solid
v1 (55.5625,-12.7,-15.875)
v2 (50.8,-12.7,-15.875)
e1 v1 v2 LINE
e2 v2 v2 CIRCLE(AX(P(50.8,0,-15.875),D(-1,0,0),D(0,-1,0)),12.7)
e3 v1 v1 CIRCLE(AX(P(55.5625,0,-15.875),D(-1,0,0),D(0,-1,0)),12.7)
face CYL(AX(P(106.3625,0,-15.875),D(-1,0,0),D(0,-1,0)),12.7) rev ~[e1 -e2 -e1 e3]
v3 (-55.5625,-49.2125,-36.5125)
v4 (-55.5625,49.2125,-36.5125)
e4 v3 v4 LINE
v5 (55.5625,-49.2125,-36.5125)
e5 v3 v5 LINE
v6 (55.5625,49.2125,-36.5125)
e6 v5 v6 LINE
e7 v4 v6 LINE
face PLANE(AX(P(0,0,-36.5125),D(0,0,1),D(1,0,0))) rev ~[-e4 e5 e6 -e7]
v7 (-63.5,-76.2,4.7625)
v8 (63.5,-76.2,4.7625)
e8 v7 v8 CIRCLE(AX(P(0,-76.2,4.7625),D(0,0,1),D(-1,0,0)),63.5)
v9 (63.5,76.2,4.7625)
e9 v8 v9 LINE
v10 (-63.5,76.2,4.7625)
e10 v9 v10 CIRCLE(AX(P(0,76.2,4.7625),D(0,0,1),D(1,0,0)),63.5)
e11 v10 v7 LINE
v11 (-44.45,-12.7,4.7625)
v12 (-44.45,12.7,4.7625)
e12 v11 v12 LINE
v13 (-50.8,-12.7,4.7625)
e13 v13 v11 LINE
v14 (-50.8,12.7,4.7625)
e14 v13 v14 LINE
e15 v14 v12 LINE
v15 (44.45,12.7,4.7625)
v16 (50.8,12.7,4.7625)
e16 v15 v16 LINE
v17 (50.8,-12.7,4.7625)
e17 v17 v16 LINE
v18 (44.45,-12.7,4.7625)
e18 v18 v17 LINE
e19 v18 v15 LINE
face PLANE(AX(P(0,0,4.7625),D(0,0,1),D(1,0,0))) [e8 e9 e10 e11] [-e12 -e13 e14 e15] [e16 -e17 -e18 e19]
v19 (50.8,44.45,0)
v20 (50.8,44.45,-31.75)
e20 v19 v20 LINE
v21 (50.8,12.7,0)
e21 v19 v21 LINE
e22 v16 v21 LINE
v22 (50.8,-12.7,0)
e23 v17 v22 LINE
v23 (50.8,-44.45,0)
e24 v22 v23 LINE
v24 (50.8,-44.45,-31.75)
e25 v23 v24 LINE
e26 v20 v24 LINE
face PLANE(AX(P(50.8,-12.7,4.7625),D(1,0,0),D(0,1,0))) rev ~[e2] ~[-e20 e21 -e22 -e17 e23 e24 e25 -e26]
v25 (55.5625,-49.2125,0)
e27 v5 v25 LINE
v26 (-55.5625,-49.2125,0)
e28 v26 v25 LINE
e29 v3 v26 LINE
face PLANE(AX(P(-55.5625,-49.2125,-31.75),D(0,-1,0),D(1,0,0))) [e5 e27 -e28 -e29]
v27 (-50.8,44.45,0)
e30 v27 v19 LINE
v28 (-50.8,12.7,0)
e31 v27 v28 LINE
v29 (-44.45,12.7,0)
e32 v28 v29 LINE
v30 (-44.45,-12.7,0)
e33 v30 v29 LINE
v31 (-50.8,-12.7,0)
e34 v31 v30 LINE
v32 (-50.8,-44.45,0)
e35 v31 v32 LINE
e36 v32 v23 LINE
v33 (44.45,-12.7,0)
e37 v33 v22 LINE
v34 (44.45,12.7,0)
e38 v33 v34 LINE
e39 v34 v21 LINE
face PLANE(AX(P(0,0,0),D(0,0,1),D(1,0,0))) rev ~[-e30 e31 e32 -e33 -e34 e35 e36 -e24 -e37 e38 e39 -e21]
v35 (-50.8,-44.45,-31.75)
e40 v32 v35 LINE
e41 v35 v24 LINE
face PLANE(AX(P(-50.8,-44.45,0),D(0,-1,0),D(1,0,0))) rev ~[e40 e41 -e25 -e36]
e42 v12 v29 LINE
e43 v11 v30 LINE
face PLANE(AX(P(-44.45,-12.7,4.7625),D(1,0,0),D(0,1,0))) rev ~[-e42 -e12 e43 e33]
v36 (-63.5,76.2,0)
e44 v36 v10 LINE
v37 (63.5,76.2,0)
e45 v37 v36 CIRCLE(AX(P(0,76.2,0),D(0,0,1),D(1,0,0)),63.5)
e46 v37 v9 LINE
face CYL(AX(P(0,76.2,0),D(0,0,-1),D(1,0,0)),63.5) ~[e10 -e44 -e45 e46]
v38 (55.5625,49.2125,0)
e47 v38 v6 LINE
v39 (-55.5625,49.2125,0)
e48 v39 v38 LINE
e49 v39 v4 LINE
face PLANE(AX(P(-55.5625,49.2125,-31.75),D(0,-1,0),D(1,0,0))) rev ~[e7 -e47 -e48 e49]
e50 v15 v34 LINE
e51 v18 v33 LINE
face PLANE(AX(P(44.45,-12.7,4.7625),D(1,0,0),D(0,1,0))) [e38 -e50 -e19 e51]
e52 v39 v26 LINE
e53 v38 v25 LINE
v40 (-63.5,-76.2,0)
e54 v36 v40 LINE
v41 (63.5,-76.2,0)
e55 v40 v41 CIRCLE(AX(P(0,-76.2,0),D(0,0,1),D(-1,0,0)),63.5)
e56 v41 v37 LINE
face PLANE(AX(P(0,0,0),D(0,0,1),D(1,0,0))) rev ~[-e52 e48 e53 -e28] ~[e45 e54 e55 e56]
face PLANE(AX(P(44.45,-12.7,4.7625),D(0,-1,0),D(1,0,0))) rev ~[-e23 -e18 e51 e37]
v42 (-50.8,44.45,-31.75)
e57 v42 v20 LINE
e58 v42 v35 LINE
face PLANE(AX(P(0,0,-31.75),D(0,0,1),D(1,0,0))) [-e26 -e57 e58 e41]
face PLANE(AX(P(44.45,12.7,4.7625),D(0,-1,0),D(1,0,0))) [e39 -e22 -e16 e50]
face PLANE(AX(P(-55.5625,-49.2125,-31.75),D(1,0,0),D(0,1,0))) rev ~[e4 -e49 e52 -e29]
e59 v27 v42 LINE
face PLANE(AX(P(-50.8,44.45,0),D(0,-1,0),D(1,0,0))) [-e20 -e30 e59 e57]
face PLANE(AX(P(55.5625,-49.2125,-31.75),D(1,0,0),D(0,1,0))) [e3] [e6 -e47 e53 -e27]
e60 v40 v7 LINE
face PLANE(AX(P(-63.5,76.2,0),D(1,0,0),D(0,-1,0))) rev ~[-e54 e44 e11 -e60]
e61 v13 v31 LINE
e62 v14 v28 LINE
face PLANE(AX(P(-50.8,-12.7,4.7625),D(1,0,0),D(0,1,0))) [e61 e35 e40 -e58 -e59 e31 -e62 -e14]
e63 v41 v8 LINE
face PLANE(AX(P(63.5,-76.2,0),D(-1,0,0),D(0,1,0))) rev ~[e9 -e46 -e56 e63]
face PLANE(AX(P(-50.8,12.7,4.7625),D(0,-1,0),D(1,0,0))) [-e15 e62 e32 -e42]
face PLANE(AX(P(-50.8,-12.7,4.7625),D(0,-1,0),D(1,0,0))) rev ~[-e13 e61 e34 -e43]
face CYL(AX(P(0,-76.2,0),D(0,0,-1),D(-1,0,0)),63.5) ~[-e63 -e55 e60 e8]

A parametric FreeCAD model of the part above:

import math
import FreeCAD as App
import Part
import Sketcher
Q = App.Units.Quantity


def add_polygon(sketch, points):
    """Adds a closed chain of lines whose ends are joined by coincident constraints."""
    first, n = sketch.GeometryCount, len(points)
    for a, b in zip(points, points[1:] + points[:1]):
        sketch.addGeometry(Part.LineSegment(App.Vector(*a, 0), App.Vector(*b, 0)), False)
    for i in range(n):
        sketch.addConstraint(Sketcher.Constraint("Coincident", first + i, 2, first + (i + 1) % n, 1))

doc = App.newDocument("Part")
body = doc.addObject("PartDesign::Body", "Body")

sketch1 = body.newObject("Sketcher::SketchObject", "Sketch")
sketch1.AttachmentSupport = (doc.getObject("XY_Plane"), [""])
sketch1.MapMode = "FlatFace"
sketch1.addGeometry(Part.ArcOfCircle(Part.Circle(App.Vector(0, -76.2, 0), App.Vector(0, 0, 1), 63.5), math.radians(180), math.radians(360)), False)
sketch1.addGeometry(Part.LineSegment(App.Vector(63.5, -76.2, 0), App.Vector(63.5, 76.2, 0)), False)
sketch1.addGeometry(Part.ArcOfCircle(Part.Circle(App.Vector(0, 76.2, 0), App.Vector(0, 0, 1), 63.5), math.radians(0), math.radians(180)), False)
sketch1.addGeometry(Part.LineSegment(App.Vector(-63.5, 76.2, 0), App.Vector(-63.5, -76.2, 0)), False)
sketch1.addConstraint(Sketcher.Constraint("Tangent", 0, 2, 1, 1))
sketch1.addConstraint(Sketcher.Constraint("Tangent", 1, 2, 2, 1))
sketch1.addConstraint(Sketcher.Constraint("Tangent", 2, 2, 3, 1))
sketch1.addConstraint(Sketcher.Constraint("Tangent", 3, 2, 0, 1))
sketch1.addConstraint(Sketcher.Constraint("Vertical", 1))
sketch1.addConstraint(Sketcher.Constraint("Vertical", 3))
sketch1.addConstraint(Sketcher.Constraint("Symmetric", 0, 3, 2, 3, -1, 1))
sketch1.addConstraint(Sketcher.Constraint("Radius", 0, Q("2.5 in")))
sketch1.addConstraint(Sketcher.Constraint("DistanceY", 1, 1, 1, 2, Q("6 in")))
pad1 = body.newObject("PartDesign::Pad", "Pad")
pad1.Profile = sketch1
pad1.Length = Q("0.1875 in")

sketch2 = body.newObject("Sketcher::SketchObject", "Sketch001")
sketch2.AttachmentSupport = (doc.getObject("XY_Plane"), [""])
sketch2.MapMode = "FlatFace"
add_polygon(sketch2, [(-55.5625, -49.2125), (-55.5625, 49.2125), (55.5625, 49.2125), (55.5625, -49.2125)])
add_polygon(sketch2, [(50.8, 44.45), (-50.8, 44.45), (-50.8, -44.45), (50.8, -44.45)])
sketch2.addConstraint(Sketcher.Constraint("Vertical", 0))
sketch2.addConstraint(Sketcher.Constraint("Horizontal", 1))
sketch2.addConstraint(Sketcher.Constraint("Vertical", 2))
sketch2.addConstraint(Sketcher.Constraint("Horizontal", 3))
sketch2.addConstraint(Sketcher.Constraint("Horizontal", 4))
sketch2.addConstraint(Sketcher.Constraint("Vertical", 5))
sketch2.addConstraint(Sketcher.Constraint("Horizontal", 6))
sketch2.addConstraint(Sketcher.Constraint("Vertical", 7))
sketch2.addConstraint(Sketcher.Constraint("Symmetric", 0, 2, 2, 2, -1, 1))
sketch2.addConstraint(Sketcher.Constraint("Symmetric", 4, 2, 6, 2, -1, 1))
sketch2.addConstraint(Sketcher.Constraint("DistanceX", 4, 2, 4, 1, Q("4 in")))
sketch2.addConstraint(Sketcher.Constraint("DistanceY", 5, 2, 5, 1, Q("3.5 in")))
sketch2.addConstraint(Sketcher.Constraint("DistanceX", 1, 1, 1, 2, Q("4.375 in")))
sketch2.addConstraint(Sketcher.Constraint("DistanceY", 0, 1, 0, 2, Q("3.875 in")))
pad2 = body.newObject("PartDesign::Pad", "Pad001")
pad2.Profile = sketch2
pad2.Length = Q("1.25 in")
pad2.Reversed = True

sketch3 = body.newObject("Sketcher::SketchObject", "Sketch002")
sketch3.AttachmentSupport = (doc.getObject("YZ_Plane"), [""])
sketch3.MapMode = "FlatFace"
sketch3.AttachmentOffset = App.Placement(App.Vector(0, 0, 2.1875 * 25.4), App.Rotation())
sketch3.addGeometry(Part.Circle(App.Vector(0, -15.875, 0), App.Vector(0, 0, 1), 12.7), False)
sketch3.addConstraint(Sketcher.Constraint("PointOnObject", 0, 3, -2))
sketch3.addConstraint(Sketcher.Constraint("Diameter", 0, Q("1 in")))
sketch3.addConstraint(Sketcher.Constraint("DistanceY", 0, 3, -1, 1, Q("0.625 in")))
doc.recompute()
hole = body.newObject("PartDesign::Hole", "Hole")
hole.Profile = sketch3
hole.ThreadType = "None"
hole.Diameter = Q("1 in")
hole.DepthType = "Dimension"
hole.Depth = Q("2 in")
hole.DrillPoint = "Flat"

sketch4 = body.newObject("Sketcher::SketchObject", "Sketch003")
sketch4.AttachmentSupport = (doc.getObject("XY_Plane"), [""])
sketch4.MapMode = "FlatFace"
sketch4.AttachmentOffset = App.Placement(App.Vector(0, 0, 0.1875 * 25.4), App.Rotation())
add_polygon(sketch4, [(44.45, 12.7), (44.45, -12.7), (50.8, -12.7), (50.8, 12.7)])
add_polygon(sketch4, [(-50.8, 12.7), (-50.8, -12.7), (-44.45, -12.7), (-44.45, 12.7)])
sketch4.addConstraint(Sketcher.Constraint("Vertical", 0))
sketch4.addConstraint(Sketcher.Constraint("Horizontal", 1))
sketch4.addConstraint(Sketcher.Constraint("Vertical", 2))
sketch4.addConstraint(Sketcher.Constraint("Horizontal", 3))
sketch4.addConstraint(Sketcher.Constraint("Vertical", 4))
sketch4.addConstraint(Sketcher.Constraint("Horizontal", 5))
sketch4.addConstraint(Sketcher.Constraint("Vertical", 6))
sketch4.addConstraint(Sketcher.Constraint("Horizontal", 7))
sketch4.addConstraint(Sketcher.Constraint("Symmetric", 2, 2, 4, 2, -1, 1))
sketch4.addConstraint(Sketcher.Constraint("Symmetric", 0, 2, 6, 2, -1, 1))
sketch4.addConstraint(Sketcher.Constraint("Horizontal", 1, 2, 4, 2))
sketch4.addConstraint(Sketcher.Constraint("DistanceY", 0, 2, 0, 1, Q("1 in")))
sketch4.addConstraint(Sketcher.Constraint("DistanceX", -1, 1, 1, 2, Q("2 in")))
sketch4.addConstraint(Sketcher.Constraint("DistanceX", 1, 1, 1, 2, Q("0.25 in")))
pocket1 = body.newObject("PartDesign::Pocket", "Pocket")
pocket1.Profile = sketch4
pocket1.Length = Q("0.1875 in")

sketch5 = body.newObject("Sketcher::SketchObject", "Sketch004")
sketch5.AttachmentSupport = (doc.getObject("XY_Plane"), [""])
sketch5.MapMode = "FlatFace"
sketch5.AttachmentOffset = App.Placement(App.Vector(0, 0, -1.25 * 25.4), App.Rotation())
add_polygon(sketch5, [(-55.5625, 49.2125), (-55.5625, -49.2125), (55.5625, -49.2125), (55.5625, 49.2125)])
sketch5.addConstraint(Sketcher.Constraint("Vertical", 0))
sketch5.addConstraint(Sketcher.Constraint("Horizontal", 1))
sketch5.addConstraint(Sketcher.Constraint("Vertical", 2))
sketch5.addConstraint(Sketcher.Constraint("Horizontal", 3))
sketch5.addConstraint(Sketcher.Constraint("Symmetric", 0, 2, 2, 2, -1, 1))
sketch5.addConstraint(Sketcher.Constraint("DistanceX", 1, 1, 1, 2, Q("4.375 in")))
sketch5.addConstraint(Sketcher.Constraint("DistanceY", 0, 2, 0, 1, Q("3.875 in")))
pad3 = body.newObject("PartDesign::Pad", "Pad002")
pad3.Profile = sketch5
pad3.Length = Q("0.1875 in")
pad3.Reversed = True

doc.recompute()
